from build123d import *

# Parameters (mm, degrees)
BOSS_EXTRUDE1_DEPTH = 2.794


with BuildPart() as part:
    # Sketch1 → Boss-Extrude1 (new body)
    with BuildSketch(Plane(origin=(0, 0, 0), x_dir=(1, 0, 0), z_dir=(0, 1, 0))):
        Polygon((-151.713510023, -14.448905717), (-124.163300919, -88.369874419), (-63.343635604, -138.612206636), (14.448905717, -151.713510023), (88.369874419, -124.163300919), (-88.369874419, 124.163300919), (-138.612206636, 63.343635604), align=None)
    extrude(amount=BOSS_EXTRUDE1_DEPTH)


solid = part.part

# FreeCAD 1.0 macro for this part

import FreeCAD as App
import Part
import Sketcher
from FreeCAD import Vector
Q = App.Units.Quantity


def add_polygon(sketch, points):
    """Adds a closed chain of lines whose ends are joined by coincident constraints."""
    first, n = sketch.GeometryCount, len(points)
    for a, b in zip(points, points[1:] + points[:1]):
        sketch.addGeometry(Part.LineSegment(App.Vector(*a, 0), App.Vector(*b, 0)), False)
    for i in range(n):
        sketch.addConstraint(Sketcher.Constraint("Coincident", first + i, 2, first + (i + 1) % n, 1))

doc = App.newDocument("Part")
body = doc.addObject("PartDesign::Body", "Body")

sketch1 = body.newObject("Sketcher::SketchObject", "Sketch")
sketch1.AttachmentSupport = (doc.getObject("XZ_Plane"), [""])
sketch1.MapMode = "FlatFace"
add_polygon(sketch1, [(-152, 14), (-124, 88), (-63, 139), (14, 152), (88, 124), (-88, -124), (-139, -63)])
sketch1.addConstraint([
    Sketcher.Constraint("Symmetric", 3, 2, 4, 2, -1, 1),
    Sketcher.Constraint("Perpendicular", 0, 3),
    Sketcher.Constraint("Perpendicular", 1, 5),
    Sketcher.Constraint("Perpendicular", 2, 6),
    Sketcher.Constraint("Equal", 0, 1),
    Sketcher.Constraint("Equal", 1, 2),
    Sketcher.Constraint("Equal", 2, 3),
    Sketcher.Constraint("Equal", 3, 5),
    Sketcher.Constraint("Equal", 5, 6),
    Sketcher.Constraint("Distance", 4, Q("12 in")),
    Sketcher.Constraint("DistanceX", 0, 2, -1, 1, Q("124.163301 mm")),
    Sketcher.Constraint("DistanceY", 6, 2, 1, 2, Q("124.163301 mm")),
    Sketcher.Constraint("DistanceY", -1, 1, 2, 2, Q("151.71351 mm")),
])
pad1 = body.newObject("PartDesign::Pad", "Pad")
pad1.Profile = sketch1
pad1.Length = Q("0.11 in")
pad1.Reversed = True

doc.recompute()
